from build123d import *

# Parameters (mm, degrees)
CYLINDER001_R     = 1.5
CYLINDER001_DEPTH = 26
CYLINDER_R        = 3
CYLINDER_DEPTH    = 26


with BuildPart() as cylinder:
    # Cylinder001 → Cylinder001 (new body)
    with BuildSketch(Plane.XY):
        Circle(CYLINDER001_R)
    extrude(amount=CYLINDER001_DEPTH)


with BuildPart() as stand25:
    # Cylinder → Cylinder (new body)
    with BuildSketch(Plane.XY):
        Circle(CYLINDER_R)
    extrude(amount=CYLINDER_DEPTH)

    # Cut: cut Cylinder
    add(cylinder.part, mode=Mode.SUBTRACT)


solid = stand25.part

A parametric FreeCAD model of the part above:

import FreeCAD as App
import Part
import Sketcher
from FreeCAD import Vector

doc = App.newDocument("Part")
body = doc.addObject("PartDesign::Body", "Body")

# Sketch on XY plane
sketch1 = body.newObject("Sketcher::SketchObject", "Sketch")
sketch1.AttachmentSupport = (doc.getObject("XY_Plane"), [""])
sketch1.MapMode = "FlatFace"
sketch1.addGeometry(Part.Circle(Vector(0, 0, 0), Vector(0, 0, 1), 1.5), False)
sketch1.addConstraint([
    Sketcher.Constraint("Coincident", 0, 3, -1, 1),
    Sketcher.Constraint("Diameter", 0, 3.0),
])
pad1 = body.newObject("PartDesign::Pad", "Pad")
pad1.Profile = sketch1
pad1.Length = 26
body2 = doc.addObject("PartDesign::Body", "Body001")

# Sketch on XY plane
sketch2 = body2.newObject("Sketcher::SketchObject", "Sketch001")
sketch2.AttachmentSupport = (doc.getObject("XY_Plane001"), [""])
sketch2.MapMode = "FlatFace"
sketch2.addGeometry(Part.Circle(Vector(0, 0, 0), Vector(0, 0, 1), 3), False)
sketch2.addConstraint([
    Sketcher.Constraint("Coincident", 0, 3, -1, 1),
    Sketcher.Constraint("Diameter", 0, 6.0),
])
pad2 = body2.newObject("PartDesign::Pad", "Pad001")
pad2.Profile = sketch2
pad2.Length = 26
doc.recompute()

boolean = body2.newObject("PartDesign::Boolean", "Boolean")
boolean.Type = "Cut"
boolean.addObjects([body])

doc.recompute()
